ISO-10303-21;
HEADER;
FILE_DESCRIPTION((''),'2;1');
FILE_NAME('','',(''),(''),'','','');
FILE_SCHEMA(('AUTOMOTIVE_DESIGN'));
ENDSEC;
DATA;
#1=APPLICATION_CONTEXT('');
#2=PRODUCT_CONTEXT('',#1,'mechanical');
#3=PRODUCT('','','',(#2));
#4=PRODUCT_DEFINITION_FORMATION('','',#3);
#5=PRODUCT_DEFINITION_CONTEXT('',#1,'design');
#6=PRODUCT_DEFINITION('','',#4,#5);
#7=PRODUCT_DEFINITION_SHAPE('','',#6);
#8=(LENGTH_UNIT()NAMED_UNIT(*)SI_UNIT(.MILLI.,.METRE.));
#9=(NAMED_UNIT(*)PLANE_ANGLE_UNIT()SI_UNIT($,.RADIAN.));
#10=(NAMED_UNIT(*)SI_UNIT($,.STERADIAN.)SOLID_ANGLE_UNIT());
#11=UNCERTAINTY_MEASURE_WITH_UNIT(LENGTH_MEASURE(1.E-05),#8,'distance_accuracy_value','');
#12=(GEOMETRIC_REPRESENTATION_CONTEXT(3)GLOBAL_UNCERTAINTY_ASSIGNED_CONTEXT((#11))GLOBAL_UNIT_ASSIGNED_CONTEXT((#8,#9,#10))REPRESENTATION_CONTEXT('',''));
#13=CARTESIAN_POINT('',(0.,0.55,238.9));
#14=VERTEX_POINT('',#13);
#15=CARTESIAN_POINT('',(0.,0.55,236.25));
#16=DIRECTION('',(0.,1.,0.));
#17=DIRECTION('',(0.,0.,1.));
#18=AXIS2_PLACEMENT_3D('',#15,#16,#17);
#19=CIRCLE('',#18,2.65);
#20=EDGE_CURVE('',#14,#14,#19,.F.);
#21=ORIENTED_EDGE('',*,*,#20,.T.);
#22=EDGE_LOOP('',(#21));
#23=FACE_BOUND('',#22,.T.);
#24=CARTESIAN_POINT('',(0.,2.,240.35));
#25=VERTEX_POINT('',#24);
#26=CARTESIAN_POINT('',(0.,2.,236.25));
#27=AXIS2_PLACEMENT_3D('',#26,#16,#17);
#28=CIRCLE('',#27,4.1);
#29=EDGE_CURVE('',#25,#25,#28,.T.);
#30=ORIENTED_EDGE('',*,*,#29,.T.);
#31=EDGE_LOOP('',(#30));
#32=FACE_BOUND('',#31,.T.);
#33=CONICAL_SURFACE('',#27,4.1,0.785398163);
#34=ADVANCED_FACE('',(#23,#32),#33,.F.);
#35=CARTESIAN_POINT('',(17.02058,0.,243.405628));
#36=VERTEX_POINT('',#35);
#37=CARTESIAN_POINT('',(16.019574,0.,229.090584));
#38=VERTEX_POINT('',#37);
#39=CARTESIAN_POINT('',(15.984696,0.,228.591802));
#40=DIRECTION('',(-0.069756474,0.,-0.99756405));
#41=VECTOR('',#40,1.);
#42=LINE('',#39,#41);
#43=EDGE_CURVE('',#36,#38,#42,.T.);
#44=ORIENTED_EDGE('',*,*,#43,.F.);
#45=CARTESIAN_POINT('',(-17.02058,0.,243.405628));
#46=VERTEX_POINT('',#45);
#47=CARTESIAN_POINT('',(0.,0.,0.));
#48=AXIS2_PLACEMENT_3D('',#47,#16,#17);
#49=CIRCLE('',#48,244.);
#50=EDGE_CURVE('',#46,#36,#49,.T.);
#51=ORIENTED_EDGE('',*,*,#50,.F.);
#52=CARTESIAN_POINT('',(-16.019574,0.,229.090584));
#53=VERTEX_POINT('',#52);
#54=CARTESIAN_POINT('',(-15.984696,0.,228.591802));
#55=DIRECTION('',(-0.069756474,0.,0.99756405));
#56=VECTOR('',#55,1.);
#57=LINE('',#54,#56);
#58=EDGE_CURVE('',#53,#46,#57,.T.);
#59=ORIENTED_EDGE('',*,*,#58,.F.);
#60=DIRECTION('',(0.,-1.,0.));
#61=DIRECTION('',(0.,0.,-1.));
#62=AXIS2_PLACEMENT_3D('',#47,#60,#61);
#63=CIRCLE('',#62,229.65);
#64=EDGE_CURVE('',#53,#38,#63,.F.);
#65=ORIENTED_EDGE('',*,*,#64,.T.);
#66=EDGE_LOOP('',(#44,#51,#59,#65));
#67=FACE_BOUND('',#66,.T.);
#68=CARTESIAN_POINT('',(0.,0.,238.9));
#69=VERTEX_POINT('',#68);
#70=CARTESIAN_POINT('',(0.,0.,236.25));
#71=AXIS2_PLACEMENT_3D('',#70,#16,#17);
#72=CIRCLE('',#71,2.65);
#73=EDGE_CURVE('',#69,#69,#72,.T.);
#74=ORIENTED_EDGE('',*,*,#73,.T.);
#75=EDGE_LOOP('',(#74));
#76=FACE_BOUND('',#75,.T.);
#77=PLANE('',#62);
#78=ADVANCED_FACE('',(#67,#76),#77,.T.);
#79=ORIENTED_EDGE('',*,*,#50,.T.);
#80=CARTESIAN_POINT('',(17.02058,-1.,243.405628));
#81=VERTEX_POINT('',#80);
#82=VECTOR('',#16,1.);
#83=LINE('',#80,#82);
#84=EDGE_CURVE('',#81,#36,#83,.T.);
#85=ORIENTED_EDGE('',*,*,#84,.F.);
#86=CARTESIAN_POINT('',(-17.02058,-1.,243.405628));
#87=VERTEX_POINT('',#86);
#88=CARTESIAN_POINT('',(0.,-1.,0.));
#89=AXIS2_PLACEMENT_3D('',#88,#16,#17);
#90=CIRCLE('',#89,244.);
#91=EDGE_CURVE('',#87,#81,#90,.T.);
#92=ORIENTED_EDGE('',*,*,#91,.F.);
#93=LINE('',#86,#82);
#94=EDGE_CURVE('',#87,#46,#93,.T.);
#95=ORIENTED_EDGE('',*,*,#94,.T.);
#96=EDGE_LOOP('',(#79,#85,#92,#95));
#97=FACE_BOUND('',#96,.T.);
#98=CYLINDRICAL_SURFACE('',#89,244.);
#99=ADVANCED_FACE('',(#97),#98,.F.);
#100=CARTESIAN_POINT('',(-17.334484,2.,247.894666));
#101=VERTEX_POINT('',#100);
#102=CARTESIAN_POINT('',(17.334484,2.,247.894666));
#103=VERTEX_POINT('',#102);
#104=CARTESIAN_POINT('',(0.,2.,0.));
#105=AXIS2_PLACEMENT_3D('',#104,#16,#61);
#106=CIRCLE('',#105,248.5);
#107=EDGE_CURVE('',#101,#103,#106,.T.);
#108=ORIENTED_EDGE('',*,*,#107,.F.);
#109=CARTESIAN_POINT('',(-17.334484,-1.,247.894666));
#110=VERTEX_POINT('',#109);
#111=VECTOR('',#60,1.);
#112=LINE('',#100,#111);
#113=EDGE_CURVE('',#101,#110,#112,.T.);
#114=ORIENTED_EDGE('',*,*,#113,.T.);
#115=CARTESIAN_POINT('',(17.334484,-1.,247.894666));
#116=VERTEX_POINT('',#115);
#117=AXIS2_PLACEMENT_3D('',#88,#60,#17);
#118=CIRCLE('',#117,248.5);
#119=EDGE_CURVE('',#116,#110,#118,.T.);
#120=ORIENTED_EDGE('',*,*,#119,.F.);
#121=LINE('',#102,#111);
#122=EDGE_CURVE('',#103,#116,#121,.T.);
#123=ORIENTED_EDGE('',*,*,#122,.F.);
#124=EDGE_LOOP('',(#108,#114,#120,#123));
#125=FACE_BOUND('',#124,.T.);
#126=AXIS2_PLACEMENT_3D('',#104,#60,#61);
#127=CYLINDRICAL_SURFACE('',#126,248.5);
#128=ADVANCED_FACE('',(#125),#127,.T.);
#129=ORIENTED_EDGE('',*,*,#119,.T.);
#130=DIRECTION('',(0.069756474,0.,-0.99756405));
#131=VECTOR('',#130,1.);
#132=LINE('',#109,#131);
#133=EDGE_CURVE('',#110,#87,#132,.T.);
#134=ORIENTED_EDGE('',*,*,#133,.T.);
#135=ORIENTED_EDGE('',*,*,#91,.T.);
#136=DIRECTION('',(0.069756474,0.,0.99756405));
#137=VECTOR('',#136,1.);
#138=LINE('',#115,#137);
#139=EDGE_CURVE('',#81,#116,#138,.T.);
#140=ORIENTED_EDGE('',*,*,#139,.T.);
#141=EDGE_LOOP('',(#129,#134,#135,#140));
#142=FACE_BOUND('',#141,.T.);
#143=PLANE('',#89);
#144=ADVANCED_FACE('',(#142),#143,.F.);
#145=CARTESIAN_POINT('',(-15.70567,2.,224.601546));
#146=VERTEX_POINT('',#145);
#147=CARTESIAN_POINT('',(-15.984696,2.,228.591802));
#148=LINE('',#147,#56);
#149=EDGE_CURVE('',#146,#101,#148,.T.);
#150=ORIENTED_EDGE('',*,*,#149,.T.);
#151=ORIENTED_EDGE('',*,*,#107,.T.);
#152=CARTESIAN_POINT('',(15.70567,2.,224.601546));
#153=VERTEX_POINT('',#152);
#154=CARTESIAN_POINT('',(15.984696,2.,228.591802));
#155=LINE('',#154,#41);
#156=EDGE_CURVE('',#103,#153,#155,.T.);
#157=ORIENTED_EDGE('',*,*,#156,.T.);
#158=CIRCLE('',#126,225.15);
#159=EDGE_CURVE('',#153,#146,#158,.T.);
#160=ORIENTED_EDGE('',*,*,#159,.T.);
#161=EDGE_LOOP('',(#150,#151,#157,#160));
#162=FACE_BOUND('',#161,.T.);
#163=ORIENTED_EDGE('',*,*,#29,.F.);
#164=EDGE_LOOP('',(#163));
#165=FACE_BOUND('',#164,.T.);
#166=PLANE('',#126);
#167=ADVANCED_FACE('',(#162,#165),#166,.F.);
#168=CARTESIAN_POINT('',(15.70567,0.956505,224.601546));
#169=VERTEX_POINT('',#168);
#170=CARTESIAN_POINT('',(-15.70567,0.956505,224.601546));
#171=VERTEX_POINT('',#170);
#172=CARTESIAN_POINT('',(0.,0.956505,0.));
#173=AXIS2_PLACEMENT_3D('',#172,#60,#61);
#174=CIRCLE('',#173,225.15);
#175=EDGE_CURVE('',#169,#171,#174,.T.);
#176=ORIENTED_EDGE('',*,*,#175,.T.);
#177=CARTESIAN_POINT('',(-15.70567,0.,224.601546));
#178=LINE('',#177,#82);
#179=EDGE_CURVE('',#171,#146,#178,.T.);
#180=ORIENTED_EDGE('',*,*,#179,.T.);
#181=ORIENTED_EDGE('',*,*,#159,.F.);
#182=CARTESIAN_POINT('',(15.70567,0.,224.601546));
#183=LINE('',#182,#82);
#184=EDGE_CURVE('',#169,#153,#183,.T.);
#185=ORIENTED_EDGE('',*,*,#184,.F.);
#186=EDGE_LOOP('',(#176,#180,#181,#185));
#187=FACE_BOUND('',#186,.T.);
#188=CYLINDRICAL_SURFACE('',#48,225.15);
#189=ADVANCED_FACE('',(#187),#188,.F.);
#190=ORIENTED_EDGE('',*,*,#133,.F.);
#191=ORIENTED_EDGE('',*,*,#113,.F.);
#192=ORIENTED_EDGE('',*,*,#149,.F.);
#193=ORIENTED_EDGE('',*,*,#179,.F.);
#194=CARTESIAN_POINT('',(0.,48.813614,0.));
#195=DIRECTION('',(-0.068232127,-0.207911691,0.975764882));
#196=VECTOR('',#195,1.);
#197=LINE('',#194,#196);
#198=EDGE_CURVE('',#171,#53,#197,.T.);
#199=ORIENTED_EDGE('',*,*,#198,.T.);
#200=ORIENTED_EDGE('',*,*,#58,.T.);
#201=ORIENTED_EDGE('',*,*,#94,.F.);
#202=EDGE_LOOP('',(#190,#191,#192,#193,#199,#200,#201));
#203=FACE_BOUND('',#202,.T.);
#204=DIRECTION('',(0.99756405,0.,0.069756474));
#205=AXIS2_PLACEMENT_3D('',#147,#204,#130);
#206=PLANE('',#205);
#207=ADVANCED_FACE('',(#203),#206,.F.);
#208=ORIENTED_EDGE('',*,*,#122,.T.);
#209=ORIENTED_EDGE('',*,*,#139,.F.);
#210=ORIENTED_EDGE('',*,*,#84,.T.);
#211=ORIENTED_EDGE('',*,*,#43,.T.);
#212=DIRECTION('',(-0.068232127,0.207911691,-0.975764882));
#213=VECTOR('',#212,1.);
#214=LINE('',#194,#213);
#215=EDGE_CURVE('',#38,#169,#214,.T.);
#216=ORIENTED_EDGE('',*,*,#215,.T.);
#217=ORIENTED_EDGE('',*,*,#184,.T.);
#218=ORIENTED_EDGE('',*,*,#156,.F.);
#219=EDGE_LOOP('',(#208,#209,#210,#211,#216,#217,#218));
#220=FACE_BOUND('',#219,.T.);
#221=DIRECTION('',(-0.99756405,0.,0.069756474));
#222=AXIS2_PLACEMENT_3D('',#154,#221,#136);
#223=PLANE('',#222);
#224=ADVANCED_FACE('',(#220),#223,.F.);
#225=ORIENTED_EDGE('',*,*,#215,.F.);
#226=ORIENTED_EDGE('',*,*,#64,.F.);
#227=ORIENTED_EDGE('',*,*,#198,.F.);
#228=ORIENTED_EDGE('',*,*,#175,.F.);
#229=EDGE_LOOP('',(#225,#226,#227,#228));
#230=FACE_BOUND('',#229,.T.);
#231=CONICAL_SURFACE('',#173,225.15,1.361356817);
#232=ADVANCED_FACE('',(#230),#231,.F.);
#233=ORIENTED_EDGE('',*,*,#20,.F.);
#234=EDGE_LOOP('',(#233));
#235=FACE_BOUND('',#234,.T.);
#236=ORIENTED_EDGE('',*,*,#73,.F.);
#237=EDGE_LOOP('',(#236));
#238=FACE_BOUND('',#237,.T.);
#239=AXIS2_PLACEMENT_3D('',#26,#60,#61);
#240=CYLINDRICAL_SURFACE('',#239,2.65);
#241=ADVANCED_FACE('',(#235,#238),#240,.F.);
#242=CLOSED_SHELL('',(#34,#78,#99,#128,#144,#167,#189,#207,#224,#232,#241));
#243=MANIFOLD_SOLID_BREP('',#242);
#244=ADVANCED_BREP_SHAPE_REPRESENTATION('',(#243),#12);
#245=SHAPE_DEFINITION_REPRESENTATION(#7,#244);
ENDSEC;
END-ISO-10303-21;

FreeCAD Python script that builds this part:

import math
import FreeCAD as App
import Part
import Sketcher
from FreeCAD import Vector
Q = App.Units.Quantity


def edges_at(feature, points):
    """Names of the edges that pass closest to the given points."""
    edges = feature.Shape.Edges
    near = lambda p: min(range(len(edges)), key=lambda i: edges[i].distToShape(Part.Vertex(*p))[0])
    return sorted({f"Edge{near(p) + 1}" for p in points})

doc = App.newDocument("Part")
params = doc.addObject("Spreadsheet::Sheet", "Params")
for row, (alias, value) in enumerate([
    ("sketch1_diameter", "5.3 mm"),
    ("sketch1_radius", "248.5 mm"),
    ("sketch1_radius2", "229.15 mm"),
    ("pad1_length", "2 mm"),
    ("sketch2_radius", "229.15 mm"),
    ("sketch2_radius2", "225.15 mm"),
    ("pad2_length", "2 mm"),
    ("chamfer_size", "4.5 mm"),
    ("chamfer_size2", "0.956505 mm"),
    ("sketch3_radius", "244 mm"),
    ("sketch3_radius2", "248.5 mm"),
    ("pad3_length", "1 mm"),
    ("sketch4_width", "3 mm"),
    ("sketch4_height", "4.1 mm"),
    ("sketch4_width2", "0.75 mm"),
    ("groove_angle", "360 deg"),
], start=1):
    params.set(f"A{row}", alias)
    params.set(f"B{row}", "=" + value)
    params.setAlias(f"B{row}", alias)

body = doc.addObject("PartDesign::Body", "Body")

# Sketch on XZ plane
sketch1 = body.newObject("Sketcher::SketchObject", "Sketch")
sketch1.AttachmentSupport = (doc.getObject("XZ_Plane"), [""])
sketch1.MapMode = "FlatFace"
sketch1.addGeometry([
    Part.LineSegment(Vector(-16, 228.6, 0), Vector(-17.3, 247.9, 0)),  # 0
    Part.ArcOfCircle(Part.Circle(Vector(0, 0, 0), Vector(0, 0, 1), 248.5), math.radians(86), math.radians(94)),  # 1
    Part.LineSegment(Vector(17.3, 247.9, 0), Vector(16, 228.6, 0)),  # 2
    Part.ArcOfCircle(Part.Circle(Vector(0, 0, 0), Vector(0, 0, 1), 229.1), math.radians(86), math.radians(94)),  # 3
    Part.Circle(Vector(0, 236.2, 0), Vector(0, 0, 1), 2.6),  # 4
], False)
sketch1.addConstraint([
    Sketcher.Constraint("Coincident", 0, 2, 1, 2),
    Sketcher.Constraint("Coincident", 1, 1, 2, 1),
    Sketcher.Constraint("Coincident", 2, 2, 3, 1),
    Sketcher.Constraint("Coincident", 3, 2, 0, 1),
    Sketcher.Constraint("Coincident", 1, 3, -1, 1),
    Sketcher.Constraint("Coincident", 3, 3, -1, 1),
    Sketcher.Constraint("PointOnObject", 4, 3, -2),
    Sketcher.Constraint("Horizontal", 0, 2, 1, 1),
    Sketcher.Constraint("Horizontal", 2, 2, 3, 2),
    Sketcher.Constraint("Diameter", 4, 5.3),
    Sketcher.Constraint("Radius", 1, 248.5),
    Sketcher.Constraint("Angle", 0, Q("94 deg")),
    Sketcher.Constraint("Radius", 3, 229.15),
    Sketcher.Constraint("DistanceY", -1, 1, 4, 3, 236.25),
    Sketcher.Constraint("DistanceX", 0, 2, 2, 2, 33.31918),
])
sketch1.setExpression("Constraints[9]", "Params.sketch1_diameter")
sketch1.setExpression("Constraints[10]", "Params.sketch1_radius")
sketch1.setExpression("Constraints[12]", "Params.sketch1_radius2")
pad1 = body.newObject("PartDesign::Pad", "Pad")
pad1.Profile = sketch1
pad1.setExpression("Length", "Params.pad1_length")
pad1.Reversed = True

# Sketch on XZ plane
sketch2 = body.newObject("Sketcher::SketchObject", "Sketch001")
sketch2.AttachmentSupport = (doc.getObject("XZ_Plane"), [""])
sketch2.MapMode = "FlatFace"
sketch2.addGeometry([
    Part.LineSegment(Vector(-15.7, 224.6, 0), Vector(-16, 228.6, 0)),
    Part.ArcOfCircle(Part.Circle(Vector(0, 0, 0), Vector(0, 0, 1), 229.1), math.radians(86), math.radians(94)),
    Part.LineSegment(Vector(16, 228.6, 0), Vector(15.7, 224.6, 0)),
    Part.ArcOfCircle(Part.Circle(Vector(0, 0, 0), Vector(0, 0, 1), 225.1), math.radians(86), math.radians(94)),
], False)
sketch2.addConstraint([
    Sketcher.Constraint("Coincident", 0, 2, 1, 2),
    Sketcher.Constraint("Coincident", 1, 1, 2, 1),
    Sketcher.Constraint("Coincident", 2, 2, 3, 1),
    Sketcher.Constraint("Coincident", 3, 2, 0, 1),
    Sketcher.Constraint("Coincident", 1, 3, -1, 1),
    Sketcher.Constraint("Coincident", 3, 3, -1, 1),
    Sketcher.Constraint("Horizontal", 0, 2, 1, 1),
    Sketcher.Constraint("Horizontal", 2, 2, 3, 2),
    Sketcher.Constraint("Angle", 0, Q("94 deg")),
    Sketcher.Constraint("Radius", 1, 229.15),
    Sketcher.Constraint("Radius", 3, 225.15),
    Sketcher.Constraint("DistanceX", -1, 1, 2, 2, 15.70567),
])
sketch2.setExpression("Constraints[9]", "Params.sketch2_radius")
sketch2.setExpression("Constraints[10]", "Params.sketch2_radius2")
pad2 = body.newObject("PartDesign::Pad", "Pad001")
pad2.Profile = sketch2
pad2.setExpression("Length", "Params.pad2_length")
pad2.Reversed = True
doc.recompute()

chamfer = body.newObject("PartDesign::Chamfer", "Chamfer")
chamfer.Base = (pad2, edges_at(pad2, [(0, 0, 225.15)]))
chamfer.ChamferType = "Two distances"
chamfer.setExpression("Size", "Params.chamfer_size")
chamfer.setExpression("Size2", "Params.chamfer_size2")
chamfer.FlipDirection = True

# Sketch on XZ plane
sketch3 = body.newObject("Sketcher::SketchObject", "Sketch002")
sketch3.AttachmentSupport = (doc.getObject("XZ_Plane"), [""])
sketch3.MapMode = "FlatFace"
sketch3.AttachmentOffset = App.Placement(Vector(0, 0, 1), App.Rotation())
sketch3.addGeometry([
    Part.LineSegment(Vector(-17.3, 247.9, 0), Vector(-17, 243.4, 0)),
    Part.ArcOfCircle(Part.Circle(Vector(0, 0, 0), Vector(0, 0, 1), 244), math.radians(86), math.radians(94)),
    Part.LineSegment(Vector(17, 243.4, 0), Vector(17.3, 247.9, 0)),
    Part.ArcOfCircle(Part.Circle(Vector(0, 0, 0), Vector(0, 0, 1), 248.5), math.radians(86), math.radians(94)),
], False)
sketch3.addConstraint([
    Sketcher.Constraint("Coincident", 0, 2, 1, 2),
    Sketcher.Constraint("Coincident", 1, 1, 2, 1),
    Sketcher.Constraint("Coincident", 2, 2, 3, 1),
    Sketcher.Constraint("Coincident", 3, 2, 0, 1),
    Sketcher.Constraint("Coincident", 1, 3, -1, 1),
    Sketcher.Constraint("Coincident", 3, 3, -1, 1),
    Sketcher.Constraint("Horizontal", 0, 2, 1, 1),
    Sketcher.Constraint("Horizontal", 2, 2, 3, 2),
    Sketcher.Constraint("Radius", 1, 244.0),
    Sketcher.Constraint("Radius", 3, 248.5),
    Sketcher.Constraint("Angle", 0, Q("-86 deg")),
    Sketcher.Constraint("DistanceX", 0, 2, -1, 1, 17.02058),
])
sketch3.setExpression("Constraints[8]", "Params.sketch3_radius")
sketch3.setExpression("Constraints[9]", "Params.sketch3_radius2")
pad3 = body.newObject("PartDesign::Pad", "Pad002")
pad3.Profile = sketch3
pad3.setExpression("Length", "Params.pad3_length")
pad3.Reversed = True

# Sketch on YZ plane
sketch4 = body.newObject("Sketcher::SketchObject", "Sketch003")
sketch4.AttachmentSupport = (doc.getObject("YZ_Plane"), [""])
sketch4.MapMode = "FlatFace"
sketch4.addGeometry([
    Part.LineSegment(Vector(-1, 236.2, 0), Vector(2, 236.2, 0)),  # 0
    Part.LineSegment(Vector(2, 236.2, 0), Vector(2, 240.3, 0)),  # 1
    Part.LineSegment(Vector(2, 240.3, 0), Vector(-0.2, 238.1, 0)),  # 2
    Part.LineSegment(Vector(-0.2, 238.1, 0), Vector(-1, 238.1, 0)),  # 3
    Part.LineSegment(Vector(-1, 238.1, 0), Vector(-1, 236.2, 0)),  # 4
], False)
sketch4.addGeometry(Part.LineSegment(Vector(2, 236.2, 0), Vector(-1, 236.2, 0)), True)  # axis
sketch4.addConstraint([
    Sketcher.Constraint("Coincident", 0, 2, 1, 1),
    Sketcher.Constraint("Coincident", 1, 2, 2, 1),
    Sketcher.Constraint("Coincident", 2, 2, 3, 1),
    Sketcher.Constraint("Coincident", 3, 2, 4, 1),
    Sketcher.Constraint("Coincident", 4, 2, 0, 1),
    Sketcher.Constraint("Horizontal", 0),
    Sketcher.Constraint("Vertical", 1),
    Sketcher.Constraint("Horizontal", 3),
    Sketcher.Constraint("Vertical", 4),
    Sketcher.Constraint("Horizontal", 5),
    Sketcher.Constraint("Coincident", 5, 1, 0, 2),
    Sketcher.Constraint("Vertical", 3, 2, 5, 2),
    Sketcher.Constraint("DistanceX", 0, 1, 0, 2, 3.0),
    Sketcher.Constraint("Angle", 2, Q("-135 deg")),
    Sketcher.Constraint("DistanceY", 1, 1, 1, 2, 4.1),
    Sketcher.Constraint("DistanceX", -1, 1, 0, 2, 2.0),
    Sketcher.Constraint("DistanceX", 3, 2, 3, 1, 0.75),
    Sketcher.Constraint("DistanceY", -1, 1, 2, 2, 238.1),
])
sketch4.setExpression("Constraints[12]", "Params.sketch4_width")
sketch4.setExpression("Constraints[14]", "Params.sketch4_height")
sketch4.setExpression("Constraints[16]", "Params.sketch4_width2")
groove = body.newObject("PartDesign::Groove", "Groove")
groove.Profile = sketch4
groove.ReferenceAxis = (sketch4, ["Axis0"])
groove.setExpression("Angle", "Params.groove_angle")

doc.recompute()
